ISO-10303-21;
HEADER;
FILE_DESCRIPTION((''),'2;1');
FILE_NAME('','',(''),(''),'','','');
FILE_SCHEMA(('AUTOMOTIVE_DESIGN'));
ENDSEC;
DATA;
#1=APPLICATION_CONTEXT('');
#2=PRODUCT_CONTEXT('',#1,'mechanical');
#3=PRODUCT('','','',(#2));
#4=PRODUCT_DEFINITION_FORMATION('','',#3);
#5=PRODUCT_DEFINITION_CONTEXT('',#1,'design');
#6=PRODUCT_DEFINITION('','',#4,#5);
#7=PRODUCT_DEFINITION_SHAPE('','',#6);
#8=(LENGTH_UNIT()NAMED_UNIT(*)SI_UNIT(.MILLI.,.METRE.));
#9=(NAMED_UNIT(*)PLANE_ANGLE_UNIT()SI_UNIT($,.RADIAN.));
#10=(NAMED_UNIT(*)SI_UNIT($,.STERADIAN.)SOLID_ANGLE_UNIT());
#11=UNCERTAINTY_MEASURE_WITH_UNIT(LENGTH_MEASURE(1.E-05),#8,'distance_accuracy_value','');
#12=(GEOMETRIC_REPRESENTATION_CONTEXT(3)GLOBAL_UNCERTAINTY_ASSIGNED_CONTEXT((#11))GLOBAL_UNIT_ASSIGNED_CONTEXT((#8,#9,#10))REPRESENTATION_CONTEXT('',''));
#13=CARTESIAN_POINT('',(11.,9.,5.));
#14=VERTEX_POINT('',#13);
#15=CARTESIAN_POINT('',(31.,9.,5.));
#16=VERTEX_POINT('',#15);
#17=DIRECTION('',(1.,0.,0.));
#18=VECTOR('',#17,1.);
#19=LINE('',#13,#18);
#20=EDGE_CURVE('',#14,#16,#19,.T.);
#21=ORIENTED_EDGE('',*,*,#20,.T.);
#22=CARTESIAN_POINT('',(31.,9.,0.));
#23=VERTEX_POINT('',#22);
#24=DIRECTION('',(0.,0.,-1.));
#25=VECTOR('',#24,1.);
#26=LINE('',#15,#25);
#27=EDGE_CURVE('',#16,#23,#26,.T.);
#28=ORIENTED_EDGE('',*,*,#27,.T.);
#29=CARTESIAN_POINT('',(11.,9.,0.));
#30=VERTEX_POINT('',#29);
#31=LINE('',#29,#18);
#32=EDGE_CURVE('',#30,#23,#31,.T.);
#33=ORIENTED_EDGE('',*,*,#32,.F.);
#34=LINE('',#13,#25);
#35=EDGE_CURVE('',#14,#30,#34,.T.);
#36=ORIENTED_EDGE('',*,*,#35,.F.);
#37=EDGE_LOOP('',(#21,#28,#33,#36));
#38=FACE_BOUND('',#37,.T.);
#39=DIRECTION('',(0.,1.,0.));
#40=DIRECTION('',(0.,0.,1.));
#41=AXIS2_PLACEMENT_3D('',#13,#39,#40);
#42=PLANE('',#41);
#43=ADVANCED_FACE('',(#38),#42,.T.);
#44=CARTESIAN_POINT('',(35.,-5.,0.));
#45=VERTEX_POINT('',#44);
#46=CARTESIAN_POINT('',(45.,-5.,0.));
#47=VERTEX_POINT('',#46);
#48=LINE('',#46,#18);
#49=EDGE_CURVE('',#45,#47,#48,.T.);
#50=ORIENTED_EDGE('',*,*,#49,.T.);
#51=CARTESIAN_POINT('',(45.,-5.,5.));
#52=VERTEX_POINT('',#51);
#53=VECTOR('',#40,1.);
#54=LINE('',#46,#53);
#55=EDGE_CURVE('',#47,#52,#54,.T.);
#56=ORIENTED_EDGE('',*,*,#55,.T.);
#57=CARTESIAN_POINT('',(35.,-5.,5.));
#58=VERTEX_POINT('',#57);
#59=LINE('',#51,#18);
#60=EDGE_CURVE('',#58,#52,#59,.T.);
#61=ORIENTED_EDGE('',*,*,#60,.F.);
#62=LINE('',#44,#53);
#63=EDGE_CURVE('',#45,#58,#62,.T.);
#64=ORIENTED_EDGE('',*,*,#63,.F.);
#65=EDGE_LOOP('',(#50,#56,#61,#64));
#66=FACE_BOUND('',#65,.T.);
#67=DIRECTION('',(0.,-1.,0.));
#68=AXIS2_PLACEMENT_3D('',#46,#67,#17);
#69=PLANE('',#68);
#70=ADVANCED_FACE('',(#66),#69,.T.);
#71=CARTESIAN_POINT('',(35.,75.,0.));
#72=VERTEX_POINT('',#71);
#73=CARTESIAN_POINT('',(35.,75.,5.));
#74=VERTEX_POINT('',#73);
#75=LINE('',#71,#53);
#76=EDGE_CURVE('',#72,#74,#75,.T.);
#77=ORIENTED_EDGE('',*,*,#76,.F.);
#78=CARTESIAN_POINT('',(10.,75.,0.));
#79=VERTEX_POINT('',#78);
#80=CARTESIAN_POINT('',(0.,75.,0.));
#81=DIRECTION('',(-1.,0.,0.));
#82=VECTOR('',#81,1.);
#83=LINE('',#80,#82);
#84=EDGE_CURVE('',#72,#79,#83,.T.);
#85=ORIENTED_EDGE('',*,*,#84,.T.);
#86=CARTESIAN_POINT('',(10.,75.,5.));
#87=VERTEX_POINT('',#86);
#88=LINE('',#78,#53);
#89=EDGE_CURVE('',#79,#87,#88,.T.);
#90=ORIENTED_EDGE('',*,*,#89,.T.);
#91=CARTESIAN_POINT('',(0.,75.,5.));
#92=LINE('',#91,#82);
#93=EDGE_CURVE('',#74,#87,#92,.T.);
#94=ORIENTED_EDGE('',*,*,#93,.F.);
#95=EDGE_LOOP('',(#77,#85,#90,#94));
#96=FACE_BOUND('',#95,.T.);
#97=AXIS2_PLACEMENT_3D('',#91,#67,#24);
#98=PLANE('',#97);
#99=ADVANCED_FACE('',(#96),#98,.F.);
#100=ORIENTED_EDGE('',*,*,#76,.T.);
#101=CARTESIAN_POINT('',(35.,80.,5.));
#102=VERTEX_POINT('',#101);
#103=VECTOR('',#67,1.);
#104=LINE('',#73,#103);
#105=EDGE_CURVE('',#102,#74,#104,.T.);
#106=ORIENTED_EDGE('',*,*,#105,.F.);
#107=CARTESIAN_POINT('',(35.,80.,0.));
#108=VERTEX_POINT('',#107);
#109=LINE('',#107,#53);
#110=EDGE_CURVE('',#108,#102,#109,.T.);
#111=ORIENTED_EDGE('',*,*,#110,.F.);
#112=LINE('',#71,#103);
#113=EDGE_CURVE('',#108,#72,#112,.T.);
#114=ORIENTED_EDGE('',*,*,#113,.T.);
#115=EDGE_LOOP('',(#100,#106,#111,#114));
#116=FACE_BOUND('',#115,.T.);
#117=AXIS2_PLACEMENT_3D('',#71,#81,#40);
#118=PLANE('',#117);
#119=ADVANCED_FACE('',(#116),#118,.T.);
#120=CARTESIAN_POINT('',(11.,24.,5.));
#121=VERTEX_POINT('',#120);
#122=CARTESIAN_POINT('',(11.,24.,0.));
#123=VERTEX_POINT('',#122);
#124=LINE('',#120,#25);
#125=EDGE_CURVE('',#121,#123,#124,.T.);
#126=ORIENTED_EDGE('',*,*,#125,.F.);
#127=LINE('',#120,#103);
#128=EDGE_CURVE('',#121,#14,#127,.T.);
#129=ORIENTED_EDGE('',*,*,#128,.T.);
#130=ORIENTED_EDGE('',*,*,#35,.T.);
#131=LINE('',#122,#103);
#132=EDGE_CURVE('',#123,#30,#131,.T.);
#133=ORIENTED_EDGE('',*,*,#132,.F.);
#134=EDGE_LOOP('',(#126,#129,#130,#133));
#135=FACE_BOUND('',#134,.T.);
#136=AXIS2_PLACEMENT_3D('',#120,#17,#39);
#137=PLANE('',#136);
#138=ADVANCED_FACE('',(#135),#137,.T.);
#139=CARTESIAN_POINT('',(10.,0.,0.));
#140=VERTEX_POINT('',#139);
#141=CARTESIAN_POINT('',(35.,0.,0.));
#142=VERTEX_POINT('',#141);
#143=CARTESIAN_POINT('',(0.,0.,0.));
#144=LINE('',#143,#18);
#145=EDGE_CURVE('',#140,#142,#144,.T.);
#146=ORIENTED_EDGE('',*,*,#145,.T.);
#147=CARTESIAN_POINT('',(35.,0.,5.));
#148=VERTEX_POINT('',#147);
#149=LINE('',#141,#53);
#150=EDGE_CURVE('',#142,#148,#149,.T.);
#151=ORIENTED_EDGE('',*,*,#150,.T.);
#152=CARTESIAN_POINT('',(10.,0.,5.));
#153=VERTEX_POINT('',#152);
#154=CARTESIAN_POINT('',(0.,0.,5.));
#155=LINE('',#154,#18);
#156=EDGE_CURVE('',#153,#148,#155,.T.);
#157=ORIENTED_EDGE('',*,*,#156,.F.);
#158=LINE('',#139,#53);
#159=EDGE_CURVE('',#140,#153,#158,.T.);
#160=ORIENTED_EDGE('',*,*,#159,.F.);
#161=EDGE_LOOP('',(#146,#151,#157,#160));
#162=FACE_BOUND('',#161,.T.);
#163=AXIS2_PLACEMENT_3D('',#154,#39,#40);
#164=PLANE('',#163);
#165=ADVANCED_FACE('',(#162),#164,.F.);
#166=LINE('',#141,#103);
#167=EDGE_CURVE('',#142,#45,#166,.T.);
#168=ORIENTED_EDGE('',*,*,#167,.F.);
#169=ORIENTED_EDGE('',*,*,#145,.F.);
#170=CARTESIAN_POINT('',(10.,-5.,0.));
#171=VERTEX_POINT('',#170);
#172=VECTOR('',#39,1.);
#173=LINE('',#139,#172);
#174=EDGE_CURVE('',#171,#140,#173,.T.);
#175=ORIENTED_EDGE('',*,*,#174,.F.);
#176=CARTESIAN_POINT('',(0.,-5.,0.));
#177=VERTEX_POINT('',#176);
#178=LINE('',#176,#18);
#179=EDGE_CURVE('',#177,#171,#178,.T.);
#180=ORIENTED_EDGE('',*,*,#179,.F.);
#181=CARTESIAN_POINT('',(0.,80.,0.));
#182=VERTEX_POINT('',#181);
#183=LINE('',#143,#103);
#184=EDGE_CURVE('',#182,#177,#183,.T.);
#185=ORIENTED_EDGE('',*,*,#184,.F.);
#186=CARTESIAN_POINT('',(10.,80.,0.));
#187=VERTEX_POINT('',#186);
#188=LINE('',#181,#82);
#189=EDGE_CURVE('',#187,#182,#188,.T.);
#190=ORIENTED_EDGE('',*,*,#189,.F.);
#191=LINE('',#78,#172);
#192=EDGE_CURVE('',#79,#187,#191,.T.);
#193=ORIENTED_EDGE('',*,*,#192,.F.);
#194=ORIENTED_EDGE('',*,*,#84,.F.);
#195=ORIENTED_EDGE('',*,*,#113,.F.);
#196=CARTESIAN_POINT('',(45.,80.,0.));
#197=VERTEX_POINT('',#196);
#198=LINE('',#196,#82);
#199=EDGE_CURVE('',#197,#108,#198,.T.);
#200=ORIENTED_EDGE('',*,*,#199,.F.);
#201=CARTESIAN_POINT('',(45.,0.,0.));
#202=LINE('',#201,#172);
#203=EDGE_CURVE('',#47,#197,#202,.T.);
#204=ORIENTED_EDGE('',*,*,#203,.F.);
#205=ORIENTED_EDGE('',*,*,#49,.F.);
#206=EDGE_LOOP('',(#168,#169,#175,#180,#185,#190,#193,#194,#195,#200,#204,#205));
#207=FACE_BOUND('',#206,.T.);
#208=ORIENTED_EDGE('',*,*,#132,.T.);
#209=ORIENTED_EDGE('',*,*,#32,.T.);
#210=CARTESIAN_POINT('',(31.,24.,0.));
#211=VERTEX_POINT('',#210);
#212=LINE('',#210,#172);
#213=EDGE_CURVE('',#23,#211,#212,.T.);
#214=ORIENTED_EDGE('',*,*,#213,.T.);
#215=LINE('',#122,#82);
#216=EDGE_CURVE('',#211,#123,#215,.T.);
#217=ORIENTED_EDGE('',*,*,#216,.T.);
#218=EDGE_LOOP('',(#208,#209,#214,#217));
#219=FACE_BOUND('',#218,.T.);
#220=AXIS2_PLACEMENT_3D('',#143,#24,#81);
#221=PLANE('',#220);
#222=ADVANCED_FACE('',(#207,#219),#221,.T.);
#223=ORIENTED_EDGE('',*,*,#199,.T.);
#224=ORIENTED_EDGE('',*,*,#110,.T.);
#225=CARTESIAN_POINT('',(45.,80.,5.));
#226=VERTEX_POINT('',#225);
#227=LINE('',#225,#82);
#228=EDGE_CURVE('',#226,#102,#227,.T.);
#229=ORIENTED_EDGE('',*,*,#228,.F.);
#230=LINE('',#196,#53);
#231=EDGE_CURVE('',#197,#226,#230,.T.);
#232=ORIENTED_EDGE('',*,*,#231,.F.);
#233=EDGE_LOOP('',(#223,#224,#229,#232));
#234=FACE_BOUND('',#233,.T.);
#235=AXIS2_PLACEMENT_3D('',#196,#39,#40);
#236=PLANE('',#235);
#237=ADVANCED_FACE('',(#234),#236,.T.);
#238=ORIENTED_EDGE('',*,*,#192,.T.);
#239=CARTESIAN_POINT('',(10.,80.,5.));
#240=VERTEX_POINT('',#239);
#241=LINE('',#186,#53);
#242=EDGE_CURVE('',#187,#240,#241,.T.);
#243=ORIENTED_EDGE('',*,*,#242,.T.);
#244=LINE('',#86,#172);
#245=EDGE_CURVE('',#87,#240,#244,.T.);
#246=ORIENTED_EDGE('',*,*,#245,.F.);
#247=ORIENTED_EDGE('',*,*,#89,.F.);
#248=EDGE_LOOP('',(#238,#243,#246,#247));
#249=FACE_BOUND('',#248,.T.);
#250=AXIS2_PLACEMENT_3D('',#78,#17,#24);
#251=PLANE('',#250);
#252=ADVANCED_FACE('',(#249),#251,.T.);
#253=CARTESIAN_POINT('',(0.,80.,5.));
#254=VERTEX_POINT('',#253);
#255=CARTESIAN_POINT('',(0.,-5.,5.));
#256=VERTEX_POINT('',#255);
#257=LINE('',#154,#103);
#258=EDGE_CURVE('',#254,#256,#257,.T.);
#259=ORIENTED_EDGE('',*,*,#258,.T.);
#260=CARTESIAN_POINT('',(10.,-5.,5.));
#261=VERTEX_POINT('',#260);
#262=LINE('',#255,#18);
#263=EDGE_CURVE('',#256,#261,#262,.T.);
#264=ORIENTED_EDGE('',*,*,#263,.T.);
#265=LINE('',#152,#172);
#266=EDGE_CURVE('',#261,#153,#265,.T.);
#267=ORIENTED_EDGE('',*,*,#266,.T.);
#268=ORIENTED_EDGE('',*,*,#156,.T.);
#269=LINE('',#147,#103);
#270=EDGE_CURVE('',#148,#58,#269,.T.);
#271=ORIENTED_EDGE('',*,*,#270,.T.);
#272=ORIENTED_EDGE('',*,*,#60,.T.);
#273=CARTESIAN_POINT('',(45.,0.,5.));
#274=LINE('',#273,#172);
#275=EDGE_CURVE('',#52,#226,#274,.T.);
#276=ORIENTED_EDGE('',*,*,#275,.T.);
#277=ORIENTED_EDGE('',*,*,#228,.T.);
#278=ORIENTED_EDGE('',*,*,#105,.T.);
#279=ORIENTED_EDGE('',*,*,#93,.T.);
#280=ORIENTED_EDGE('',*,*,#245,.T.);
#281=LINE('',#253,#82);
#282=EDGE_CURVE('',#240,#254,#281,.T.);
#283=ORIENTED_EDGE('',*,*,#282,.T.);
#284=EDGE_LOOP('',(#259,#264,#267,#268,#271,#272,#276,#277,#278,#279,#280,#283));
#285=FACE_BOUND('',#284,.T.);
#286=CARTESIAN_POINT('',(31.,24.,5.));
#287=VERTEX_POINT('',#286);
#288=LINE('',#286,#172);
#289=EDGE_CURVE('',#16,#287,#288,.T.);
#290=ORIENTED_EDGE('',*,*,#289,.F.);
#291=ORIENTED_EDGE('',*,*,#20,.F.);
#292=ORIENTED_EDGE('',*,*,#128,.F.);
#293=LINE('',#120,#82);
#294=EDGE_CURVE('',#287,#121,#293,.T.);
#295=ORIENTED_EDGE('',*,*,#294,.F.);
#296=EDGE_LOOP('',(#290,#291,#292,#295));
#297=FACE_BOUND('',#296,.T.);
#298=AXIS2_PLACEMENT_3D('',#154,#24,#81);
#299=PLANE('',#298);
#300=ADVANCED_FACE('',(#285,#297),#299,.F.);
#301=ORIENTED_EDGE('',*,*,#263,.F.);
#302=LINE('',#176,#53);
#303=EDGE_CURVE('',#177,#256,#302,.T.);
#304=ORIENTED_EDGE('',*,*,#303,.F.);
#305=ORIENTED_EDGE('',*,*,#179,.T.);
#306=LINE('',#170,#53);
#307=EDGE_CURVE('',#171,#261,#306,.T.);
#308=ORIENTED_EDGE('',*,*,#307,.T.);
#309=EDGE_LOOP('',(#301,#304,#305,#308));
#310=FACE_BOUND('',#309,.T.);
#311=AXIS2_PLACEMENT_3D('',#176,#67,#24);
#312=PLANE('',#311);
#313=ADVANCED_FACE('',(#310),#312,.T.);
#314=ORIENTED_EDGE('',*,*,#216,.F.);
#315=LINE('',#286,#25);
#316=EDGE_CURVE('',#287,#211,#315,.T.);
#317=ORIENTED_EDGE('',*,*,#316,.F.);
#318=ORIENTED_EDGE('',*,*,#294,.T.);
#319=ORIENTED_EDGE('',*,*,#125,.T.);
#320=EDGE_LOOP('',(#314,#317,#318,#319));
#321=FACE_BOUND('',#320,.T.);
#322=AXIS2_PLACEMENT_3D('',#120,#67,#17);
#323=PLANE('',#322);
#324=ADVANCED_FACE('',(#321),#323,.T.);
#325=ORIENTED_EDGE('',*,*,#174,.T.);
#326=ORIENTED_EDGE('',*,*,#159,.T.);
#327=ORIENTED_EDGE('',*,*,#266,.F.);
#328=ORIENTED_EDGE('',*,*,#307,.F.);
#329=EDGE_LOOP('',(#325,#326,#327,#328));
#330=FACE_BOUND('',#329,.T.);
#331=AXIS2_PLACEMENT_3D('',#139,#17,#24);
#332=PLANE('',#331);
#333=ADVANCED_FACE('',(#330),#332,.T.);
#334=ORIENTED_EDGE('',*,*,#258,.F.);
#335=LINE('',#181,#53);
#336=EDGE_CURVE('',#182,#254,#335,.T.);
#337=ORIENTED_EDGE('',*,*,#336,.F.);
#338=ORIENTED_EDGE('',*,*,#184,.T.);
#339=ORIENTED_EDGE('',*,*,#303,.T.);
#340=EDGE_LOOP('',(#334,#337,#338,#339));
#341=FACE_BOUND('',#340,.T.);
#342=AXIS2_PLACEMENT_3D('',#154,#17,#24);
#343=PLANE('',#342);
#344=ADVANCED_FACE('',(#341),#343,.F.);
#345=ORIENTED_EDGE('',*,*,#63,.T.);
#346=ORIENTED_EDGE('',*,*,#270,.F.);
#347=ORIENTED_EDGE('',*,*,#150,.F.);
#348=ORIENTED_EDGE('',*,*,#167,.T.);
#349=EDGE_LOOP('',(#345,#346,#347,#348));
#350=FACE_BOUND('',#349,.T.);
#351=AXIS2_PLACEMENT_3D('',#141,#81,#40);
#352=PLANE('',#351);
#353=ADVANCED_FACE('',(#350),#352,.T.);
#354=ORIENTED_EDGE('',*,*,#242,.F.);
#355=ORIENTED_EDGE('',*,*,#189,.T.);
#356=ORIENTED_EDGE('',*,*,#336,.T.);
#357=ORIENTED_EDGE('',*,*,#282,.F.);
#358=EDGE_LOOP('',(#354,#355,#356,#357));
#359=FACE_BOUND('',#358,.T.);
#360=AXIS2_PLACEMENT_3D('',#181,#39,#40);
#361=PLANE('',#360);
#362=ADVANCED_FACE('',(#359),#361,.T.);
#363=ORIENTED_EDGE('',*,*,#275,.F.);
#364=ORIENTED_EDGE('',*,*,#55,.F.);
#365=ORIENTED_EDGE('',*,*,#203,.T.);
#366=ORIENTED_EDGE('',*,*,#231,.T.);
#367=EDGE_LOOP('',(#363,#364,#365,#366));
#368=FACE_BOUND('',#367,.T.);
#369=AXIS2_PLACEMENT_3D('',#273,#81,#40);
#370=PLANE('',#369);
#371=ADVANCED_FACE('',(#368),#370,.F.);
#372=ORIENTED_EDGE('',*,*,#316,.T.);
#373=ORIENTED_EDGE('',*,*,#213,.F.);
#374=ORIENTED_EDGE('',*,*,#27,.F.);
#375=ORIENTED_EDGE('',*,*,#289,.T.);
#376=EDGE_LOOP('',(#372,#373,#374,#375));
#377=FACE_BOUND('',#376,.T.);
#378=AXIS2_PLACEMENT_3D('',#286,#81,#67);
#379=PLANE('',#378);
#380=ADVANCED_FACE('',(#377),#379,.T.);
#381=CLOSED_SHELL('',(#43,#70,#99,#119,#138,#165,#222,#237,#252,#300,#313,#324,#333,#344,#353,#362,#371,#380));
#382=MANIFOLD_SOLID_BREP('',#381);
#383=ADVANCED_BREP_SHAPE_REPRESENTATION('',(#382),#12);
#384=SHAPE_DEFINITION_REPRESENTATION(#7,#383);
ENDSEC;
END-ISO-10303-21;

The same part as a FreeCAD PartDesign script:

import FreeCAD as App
import Part
import Sketcher
from FreeCAD import Vector
Q = App.Units.Quantity


def add_polygon(sketch, points):
    """Adds a closed chain of lines whose ends are joined by coincident constraints."""
    first, n = sketch.GeometryCount, len(points)
    for a, b in zip(points, points[1:] + points[:1]):
        sketch.addGeometry(Part.LineSegment(App.Vector(*a, 0), App.Vector(*b, 0)), False)
    for i in range(n):
        sketch.addConstraint(Sketcher.Constraint("Coincident", first + i, 2, first + (i + 1) % n, 1))

doc = App.newDocument("Part")
body = doc.addObject("PartDesign::Body", "Body")

sketch1 = doc.addObject("Sketcher::SketchObject", "Sketch")
body.addObject(sketch1)
sketch1.AttachmentSupport = (doc.XY_Plane, [""])
sketch1.MapMode = "FlatFace"
add_polygon(sketch1, [(0, 75), (0, 0), (45, 0), (45, 75)])
add_polygon(sketch1, [(31, 9), (11, 9), (11, 24), (31, 24)])
sketch1.addConstraint(Sketcher.Constraint("Vertical", 0))
sketch1.addConstraint(Sketcher.Constraint("Horizontal", 1))
sketch1.addConstraint(Sketcher.Constraint("Vertical", 2))
sketch1.addConstraint(Sketcher.Constraint("Horizontal", 3))
sketch1.addConstraint(Sketcher.Constraint("Horizontal", 4))
sketch1.addConstraint(Sketcher.Constraint("Vertical", 5))
sketch1.addConstraint(Sketcher.Constraint("Horizontal", 6))
sketch1.addConstraint(Sketcher.Constraint("Vertical", 7))
sketch1.addConstraint(Sketcher.Constraint("Coincident", 0, 2, -1, 1))
sketch1.addConstraint(Sketcher.Constraint("DistanceX", 1, 1, 1, 2, Q("45 mm")))
sketch1.addConstraint(Sketcher.Constraint("DistanceX", 4, 2, 4, 1, Q("20 mm")))
sketch1.addConstraint(Sketcher.Constraint("DistanceY", 0, 2, 0, 1, Q("75 mm")))
sketch1.addConstraint(Sketcher.Constraint("DistanceY", 5, 1, 5, 2, Q("15 mm")))
sketch1.addConstraint(Sketcher.Constraint("DistanceX", -1, 1, 4, 2, Q("11 mm")))
sketch1.addConstraint(Sketcher.Constraint("DistanceY", -1, 1, 4, 2, Q("9 mm")))
pad1 = doc.addObject("PartDesign::Pad", "Pad")
body.addObject(pad1)
pad1.Profile = sketch1
pad1.Length = 5

sketch2 = doc.addObject("Sketcher::SketchObject", "Sketch001")
body.addObject(sketch2)
sketch2.AttachmentSupport = (doc.XY_Plane, [""])
sketch2.MapMode = "FlatFace"
sketch2.AttachmentOffset = App.Placement(Vector(0, 0, 5), App.Rotation())
add_polygon(sketch2, [(0, 80), (0, 75), (10, 75), (10, 80)])
add_polygon(sketch2, [(35, 80), (35, 75), (45, 75), (45, 80)])
add_polygon(sketch2, [(0, 0), (0, -5), (10, -5), (10, 0)])
add_polygon(sketch2, [(35, 0), (35, -5), (45, -5), (45, 0)])
sketch2.addConstraint(Sketcher.Constraint("Vertical", 0))
sketch2.addConstraint(Sketcher.Constraint("Horizontal", 1))
sketch2.addConstraint(Sketcher.Constraint("Vertical", 2))
sketch2.addConstraint(Sketcher.Constraint("Horizontal", 3))
sketch2.addConstraint(Sketcher.Constraint("Vertical", 4))
sketch2.addConstraint(Sketcher.Constraint("Horizontal", 5))
sketch2.addConstraint(Sketcher.Constraint("Vertical", 6))
sketch2.addConstraint(Sketcher.Constraint("Horizontal", 7))
sketch2.addConstraint(Sketcher.Constraint("Vertical", 8))
sketch2.addConstraint(Sketcher.Constraint("Horizontal", 9))
sketch2.addConstraint(Sketcher.Constraint("Vertical", 10))
sketch2.addConstraint(Sketcher.Constraint("Horizontal", 11))
sketch2.addConstraint(Sketcher.Constraint("Vertical", 12))
sketch2.addConstraint(Sketcher.Constraint("Horizontal", 13))
sketch2.addConstraint(Sketcher.Constraint("Vertical", 14))
sketch2.addConstraint(Sketcher.Constraint("Horizontal", 15))
sketch2.addConstraint(Sketcher.Constraint("Coincident", 11, 2, -1, 1))
sketch2.addConstraint(Sketcher.Constraint("PointOnObject", 0, 2, -2))
sketch2.addConstraint(Sketcher.Constraint("PointOnObject", 14, 2, -1))
sketch2.addConstraint(Sketcher.Constraint("Horizontal", 1, 2, 4, 2))
sketch2.addConstraint(Sketcher.Constraint("Horizontal", 3, 2, 6, 2))
sketch2.addConstraint(Sketcher.Constraint("Horizontal", 9, 2, 12, 2))
sketch2.addConstraint(Sketcher.Constraint("Vertical", 2, 2, 9, 2))
sketch2.addConstraint(Sketcher.Constraint("Vertical", 7, 2, 12, 2))
sketch2.addConstraint(Sketcher.Constraint("Vertical", 6, 2, 13, 2))
sketch2.addConstraint(Sketcher.Constraint("Equal", 3, 5))
sketch2.addConstraint(Sketcher.Constraint("Equal", 6, 8))
sketch2.addConstraint(Sketcher.Constraint("DistanceX", 1, 1, 1, 2, Q("10 mm")))
sketch2.addConstraint(Sketcher.Constraint("DistanceY", 0, 2, 0, 1, Q("5 mm")))
sketch2.addConstraint(Sketcher.Constraint("DistanceY", -1, 1, 0, 2, Q("75 mm")))
sketch2.addConstraint(Sketcher.Constraint("DistanceX", -1, 1, 4, 2, Q("35 mm")))
pad2 = doc.addObject("PartDesign::Pad", "Pad001")
body.addObject(pad2)
pad2.Profile = sketch2
pad2.Length = 5
pad2.Reversed = True

doc.recompute()
